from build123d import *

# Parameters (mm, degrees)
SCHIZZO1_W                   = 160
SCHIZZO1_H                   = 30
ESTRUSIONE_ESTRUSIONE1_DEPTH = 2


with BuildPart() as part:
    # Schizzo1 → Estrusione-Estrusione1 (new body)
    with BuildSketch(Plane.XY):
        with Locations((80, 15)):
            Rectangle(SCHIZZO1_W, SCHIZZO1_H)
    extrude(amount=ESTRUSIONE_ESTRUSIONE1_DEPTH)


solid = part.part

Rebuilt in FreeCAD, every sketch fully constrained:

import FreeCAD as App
import Part
import Sketcher
from FreeCAD import Vector


def add_polygon(sketch, points):
    """Adds a closed chain of lines whose ends are joined by coincident constraints."""
    first, n = sketch.GeometryCount, len(points)
    for a, b in zip(points, points[1:] + points[:1]):
        sketch.addGeometry(Part.LineSegment(App.Vector(*a, 0), App.Vector(*b, 0)), False)
    for i in range(n):
        sketch.addConstraint(Sketcher.Constraint("Coincident", first + i, 2, first + (i + 1) % n, 1))

doc = App.newDocument("Part")
body = doc.addObject("PartDesign::Body", "Body")

# Sketch on XY plane
sketch1 = body.newObject("Sketcher::SketchObject", "Sketch")
sketch1.AttachmentSupport = (doc.getObject("XY_Plane"), [""])
sketch1.MapMode = "FlatFace"
add_polygon(sketch1, [(0, 30), (0, 0), (160, 0), (160, 30)])  # lines 0-3
sketch1.addConstraint(Sketcher.Constraint("Vertical", 0))
sketch1.addConstraint(Sketcher.Constraint("Horizontal", 1))
sketch1.addConstraint(Sketcher.Constraint("Vertical", 2))
sketch1.addConstraint(Sketcher.Constraint("Horizontal", 3))
sketch1.addConstraint(Sketcher.Constraint("Coincident", 0, 2, -1, 1))
sketch1.addConstraint(Sketcher.Constraint("DistanceX", 1, 1, 1, 2, 160.0))
sketch1.addConstraint(Sketcher.Constraint("DistanceY", 0, 2, 0, 1, 30.0))
pad1 = body.newObject("PartDesign::Pad", "Pad")
pad1.Profile = sketch1
pad1.Length = 2

doc.recompute()
